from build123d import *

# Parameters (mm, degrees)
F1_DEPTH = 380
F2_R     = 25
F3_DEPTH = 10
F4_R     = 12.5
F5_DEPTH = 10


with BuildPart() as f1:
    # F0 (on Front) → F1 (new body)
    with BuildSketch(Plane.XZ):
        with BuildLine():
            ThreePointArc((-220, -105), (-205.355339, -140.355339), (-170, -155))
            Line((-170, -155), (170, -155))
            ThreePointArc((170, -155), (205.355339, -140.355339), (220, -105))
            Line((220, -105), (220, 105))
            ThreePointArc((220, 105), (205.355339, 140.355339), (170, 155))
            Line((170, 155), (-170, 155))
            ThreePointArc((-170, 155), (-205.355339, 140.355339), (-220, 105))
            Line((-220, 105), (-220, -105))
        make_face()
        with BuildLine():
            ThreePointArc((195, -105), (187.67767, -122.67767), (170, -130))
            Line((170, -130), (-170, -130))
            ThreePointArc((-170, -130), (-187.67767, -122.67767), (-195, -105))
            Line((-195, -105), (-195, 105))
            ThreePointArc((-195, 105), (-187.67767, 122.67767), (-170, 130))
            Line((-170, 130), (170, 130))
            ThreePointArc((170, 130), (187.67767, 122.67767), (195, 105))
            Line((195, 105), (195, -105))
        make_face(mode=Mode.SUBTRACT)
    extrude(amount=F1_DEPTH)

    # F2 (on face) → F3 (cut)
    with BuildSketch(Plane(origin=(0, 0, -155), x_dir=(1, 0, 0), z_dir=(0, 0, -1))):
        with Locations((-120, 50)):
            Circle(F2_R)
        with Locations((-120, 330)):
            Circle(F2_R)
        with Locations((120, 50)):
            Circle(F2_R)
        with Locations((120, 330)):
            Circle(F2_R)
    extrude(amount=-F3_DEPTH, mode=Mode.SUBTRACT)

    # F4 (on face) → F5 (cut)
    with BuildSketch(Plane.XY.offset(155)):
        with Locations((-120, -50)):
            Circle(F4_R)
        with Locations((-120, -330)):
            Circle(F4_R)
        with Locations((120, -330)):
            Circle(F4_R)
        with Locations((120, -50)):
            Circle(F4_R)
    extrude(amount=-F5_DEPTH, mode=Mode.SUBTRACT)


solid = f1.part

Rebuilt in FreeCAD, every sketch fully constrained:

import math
import FreeCAD as App
import Part
import Sketcher

V = App.Vector

doc = App.newDocument("Part")
body = doc.addObject("PartDesign::Body", "Body")

sketch1 = body.newObject("Sketcher::SketchObject", "Sketch")
sketch1.AttachmentSupport = (doc.getObject("XZ_Plane"), [""])
sketch1.MapMode = "FlatFace"
sketch1.addGeometry([
    Part.ArcOfCircle(Part.Circle(V(-170, -105, 0), V(0, 0, 1), 50), math.radians(-180), math.radians(-90)),
    Part.LineSegment(V(-170, -155, 0), V(170, -155, 0)),
    Part.ArcOfCircle(Part.Circle(V(170, -105, 0), V(0, 0, 1), 50), math.radians(-90), math.radians(0)),
    Part.LineSegment(V(220, -105, 0), V(220, 105, 0)),
    Part.ArcOfCircle(Part.Circle(V(170, 105, 0), V(0, 0, 1), 50), math.radians(0), math.radians(90)),
    Part.LineSegment(V(170, 155, 0), V(-170, 155, 0)),
    Part.ArcOfCircle(Part.Circle(V(-170, 105, 0), V(0, 0, 1), 50), math.radians(90), math.radians(180)),
    Part.LineSegment(V(-220, 105, 0), V(-220, -105, 0)),
    Part.LineSegment(V(195, 105, 0), V(195, -105, 0)),
    Part.ArcOfCircle(Part.Circle(V(170.000002, -105.000002, 0), V(0, 0, 1), 24.999998), math.radians(-90.000004), math.radians(0.000004)),
    Part.LineSegment(V(170, -130, 0), V(-170, -130, 0)),
    Part.ArcOfCircle(Part.Circle(V(-170.000002, -105.000002, 0), V(0, 0, 1), 24.999998), math.radians(179.999996), math.radians(270.000004)),
    Part.LineSegment(V(-195, -105, 0), V(-195, 105, 0)),
    Part.ArcOfCircle(Part.Circle(V(-170.000002, 105.000002, 0), V(0, 0, 1), 24.999998), math.radians(89.999996), math.radians(180.000004)),
    Part.LineSegment(V(-170, 130, 0), V(170, 130, 0)),
    Part.ArcOfCircle(Part.Circle(V(170.000002, 105.000002, 0), V(0, 0, 1), 24.999998), math.radians(-0.000004), math.radians(90.000004)),
], False)
sketch1.addConstraint([
    Sketcher.Constraint("Tangent", 0, 2, 1, 1),
    Sketcher.Constraint("Tangent", 1, 2, 2, 1),
    Sketcher.Constraint("Tangent", 2, 2, 3, 1),
    Sketcher.Constraint("Tangent", 3, 2, 4, 1),
    Sketcher.Constraint("Tangent", 4, 2, 5, 1),
    Sketcher.Constraint("Tangent", 5, 2, 6, 1),
    Sketcher.Constraint("Tangent", 6, 2, 7, 1),
    Sketcher.Constraint("Tangent", 7, 2, 0, 1),
    Sketcher.Constraint("Tangent", 8, 2, 9, 2),
    Sketcher.Constraint("Tangent", 9, 1, 10, 1),
    Sketcher.Constraint("Tangent", 10, 2, 11, 2),
    Sketcher.Constraint("Tangent", 11, 1, 12, 1),
    Sketcher.Constraint("Tangent", 12, 2, 13, 2),
    Sketcher.Constraint("Tangent", 13, 1, 14, 1),
    Sketcher.Constraint("Tangent", 14, 2, 15, 2),
    Sketcher.Constraint("Tangent", 15, 1, 8, 1),
    Sketcher.Constraint("Horizontal", 1),
    Sketcher.Constraint("Vertical", 3),
    Sketcher.Constraint("Horizontal", 5),
    Sketcher.Constraint("Vertical", 7),
    Sketcher.Constraint("Vertical", 8),
    Sketcher.Constraint("Horizontal", 10),
    Sketcher.Constraint("Vertical", 12),
    Sketcher.Constraint("Horizontal", 14),
    Sketcher.Constraint("Coincident", 9, 3, 2, 3),
    Sketcher.Constraint("Coincident", 11, 3, 0, 3),
    Sketcher.Constraint("Coincident", 13, 3, 6, 3),
    Sketcher.Constraint("Equal", 0, 2),
    Sketcher.Constraint("Equal", 2, 4),
    Sketcher.Constraint("Equal", 4, 6),
    Sketcher.Constraint("Equal", 13, 15),
    Sketcher.Constraint("Symmetric", 0, 3, 4, 3, -1, 1),
    Sketcher.Constraint("Radius", 0, 50.0),
    Sketcher.Constraint("Radius", 9, 24.999998),
    Sketcher.Constraint("DistanceX", 1, 1, 1, 2, 340.0),
    Sketcher.Constraint("DistanceY", 3, 1, 3, 2, 210.0),
])
pad1 = body.newObject("PartDesign::Pad", "Pad")
pad1.Profile = sketch1
pad1.Length = 380

sketch2 = body.newObject("Sketcher::SketchObject", "Sketch001")
sketch2.AttachmentSupport = (doc.getObject("XY_Plane"), [""])
sketch2.MapMode = "FlatFace"
sketch2.AttachmentOffset = App.Placement(V(0, 0, -155), App.Rotation())
sketch2.addGeometry([
    Part.Circle(V(-120, -50, 0), V(0, 0, 1), 25),
    Part.Circle(V(-120, -330, 0), V(0, 0, 1), 25),
    Part.Circle(V(120, -50, 0), V(0, 0, 1), 25),
    Part.Circle(V(120, -330, 0), V(0, 0, 1), 25),
], False)
sketch2.addConstraint([
    Sketcher.Constraint("Equal", 0, 1),
    Sketcher.Constraint("Equal", 1, 2),
    Sketcher.Constraint("Equal", 2, 3),
    Sketcher.Constraint("Symmetric", 0, 3, 2, 3, -2),
    Sketcher.Constraint("Symmetric", 1, 3, 3, 3, -2),
    Sketcher.Constraint("Vertical", 0, 3, 1, 3),
    Sketcher.Constraint("Diameter", 0, 50.0),
    Sketcher.Constraint("DistanceX", 0, 3, -1, 1, 120.0),
    Sketcher.Constraint("DistanceY", 0, 3, -1, 1, 50.0),
    Sketcher.Constraint("DistanceY", 1, 3, -1, 1, 330.0),
])
pocket1 = body.newObject("PartDesign::Pocket", "Pocket")
pocket1.Profile = sketch2
pocket1.Length = 10
pocket1.Reversed = True

sketch3 = body.newObject("Sketcher::SketchObject", "Sketch002")
sketch3.AttachmentSupport = (doc.getObject("XY_Plane"), [""])
sketch3.MapMode = "FlatFace"
sketch3.AttachmentOffset = App.Placement(V(0, 0, 155), App.Rotation())
sketch3.addGeometry([
    Part.Circle(V(-120, -50, 0), V(0, 0, 1), 12.5),
    Part.Circle(V(-120, -330, 0), V(0, 0, 1), 12.5),
    Part.Circle(V(120, -330, 0), V(0, 0, 1), 12.5),
    Part.Circle(V(120, -50, 0), V(0, 0, 1), 12.5),
], False)
sketch3.addConstraint([
    Sketcher.Constraint("Equal", 0, 1),
    Sketcher.Constraint("Equal", 1, 2),
    Sketcher.Constraint("Equal", 2, 3),
    Sketcher.Constraint("Symmetric", 1, 3, 2, 3, -2),
    Sketcher.Constraint("Symmetric", 0, 3, 3, 3, -2),
    Sketcher.Constraint("Vertical", 0, 3, 1, 3),
    Sketcher.Constraint("Diameter", 0, 25.0),
    Sketcher.Constraint("DistanceX", 0, 3, -1, 1, 120.0),
    Sketcher.Constraint("DistanceY", 0, 3, -1, 1, 50.0),
    Sketcher.Constraint("DistanceY", 1, 3, -1, 1, 330.0),
])
pocket2 = body.newObject("PartDesign::Pocket", "Pocket001")
pocket2.Profile = sketch3
pocket2.Length = 10

doc.recompute()
